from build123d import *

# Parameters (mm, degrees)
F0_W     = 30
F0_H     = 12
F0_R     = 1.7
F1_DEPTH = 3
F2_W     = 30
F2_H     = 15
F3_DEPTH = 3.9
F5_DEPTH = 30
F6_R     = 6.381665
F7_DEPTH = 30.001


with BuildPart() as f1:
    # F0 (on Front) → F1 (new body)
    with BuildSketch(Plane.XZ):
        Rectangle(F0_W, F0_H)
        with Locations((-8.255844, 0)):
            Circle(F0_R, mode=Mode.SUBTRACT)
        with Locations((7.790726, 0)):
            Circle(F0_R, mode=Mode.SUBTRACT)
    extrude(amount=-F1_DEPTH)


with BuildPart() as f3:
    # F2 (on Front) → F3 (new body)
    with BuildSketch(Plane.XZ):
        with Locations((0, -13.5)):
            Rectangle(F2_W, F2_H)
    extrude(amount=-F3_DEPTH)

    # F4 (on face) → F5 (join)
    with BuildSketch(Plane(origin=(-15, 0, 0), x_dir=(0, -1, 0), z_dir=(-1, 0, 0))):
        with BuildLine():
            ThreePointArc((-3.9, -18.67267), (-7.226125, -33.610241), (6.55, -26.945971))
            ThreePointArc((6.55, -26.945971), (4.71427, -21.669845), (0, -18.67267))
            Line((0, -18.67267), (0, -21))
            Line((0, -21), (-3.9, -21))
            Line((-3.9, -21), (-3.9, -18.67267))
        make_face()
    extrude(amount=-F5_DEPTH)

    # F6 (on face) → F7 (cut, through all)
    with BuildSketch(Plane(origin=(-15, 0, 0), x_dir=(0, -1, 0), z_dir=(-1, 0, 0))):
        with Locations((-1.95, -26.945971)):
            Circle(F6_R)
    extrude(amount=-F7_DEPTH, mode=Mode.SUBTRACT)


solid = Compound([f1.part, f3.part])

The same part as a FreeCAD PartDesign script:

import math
import FreeCAD as App
import Part
import Sketcher

V = App.Vector

doc = App.newDocument("Part")
body = doc.addObject("PartDesign::Body", "Body")

sketch1 = body.newObject("Sketcher::SketchObject", "Sketch")
sketch1.AttachmentSupport = (doc.getObject("XZ_Plane"), [""])
sketch1.MapMode = "FlatFace"
sketch1.addGeometry([
    Part.LineSegment(V(-15, 6, 0), V(-15, -6, 0)),
    Part.LineSegment(V(-15, -6, 0), V(15, -6, 0)),
    Part.LineSegment(V(15, -6, 0), V(15, 6, 0)),
    Part.LineSegment(V(15, 6, 0), V(-15, 6, 0)),
    Part.Circle(V(-8.3, 0, 0), V(0, 0, 1), 1.7),
    Part.Circle(V(7.8, 0, 0), V(0, 0, 1), 1.7),
], False)
sketch1.addConstraint([
    Sketcher.Constraint("Coincident", 0, 2, 1, 1),
    Sketcher.Constraint("Coincident", 1, 2, 2, 1),
    Sketcher.Constraint("Coincident", 2, 2, 3, 1),
    Sketcher.Constraint("Coincident", 3, 2, 0, 1),
    Sketcher.Constraint("Vertical", 0),
    Sketcher.Constraint("Horizontal", 1),
    Sketcher.Constraint("Vertical", 2),
    Sketcher.Constraint("Horizontal", 3),
    Sketcher.Constraint("Equal", 4, 5),
    Sketcher.Constraint("Symmetric", 0, 2, 2, 2, -1, 1),
    Sketcher.Constraint("PointOnObject", 4, 3, -1),
    Sketcher.Constraint("PointOnObject", 5, 3, -1),
    Sketcher.Constraint("Diameter", 4, 3.4),
    Sketcher.Constraint("DistanceX", 1, 1, 1, 2, 30.0),
    Sketcher.Constraint("DistanceY", 0, 2, 0, 1, 12.0),
    Sketcher.Constraint("DistanceX", 4, 3, 5, 3, 16.04657),
    Sketcher.Constraint("DistanceX", 4, 3, -1, 1, 8.255844),
])
pad1 = body.newObject("PartDesign::Pad", "Pad")
pad1.Profile = sketch1
pad1.Length = 3
pad1.Reversed = True
body2 = doc.addObject("PartDesign::Body", "Body001")

sketch2 = body2.newObject("Sketcher::SketchObject", "Sketch001")
sketch2.AttachmentSupport = (doc.getObject("XZ_Plane001"), [""])
sketch2.MapMode = "FlatFace"
sketch2.addGeometry([
    Part.LineSegment(V(-15, -6, 0), V(-15, -21, 0)),
    Part.LineSegment(V(-15, -21, 0), V(15, -21, 0)),
    Part.LineSegment(V(15, -21, 0), V(15, -6, 0)),
    Part.LineSegment(V(15, -6, 0), V(-15, -6, 0)),
], False)
sketch2.addConstraint([
    Sketcher.Constraint("Coincident", 0, 2, 1, 1),
    Sketcher.Constraint("Coincident", 1, 2, 2, 1),
    Sketcher.Constraint("Coincident", 2, 2, 3, 1),
    Sketcher.Constraint("Coincident", 3, 2, 0, 1),
    Sketcher.Constraint("Vertical", 0),
    Sketcher.Constraint("Horizontal", 1),
    Sketcher.Constraint("Vertical", 2),
    Sketcher.Constraint("Horizontal", 3),
    Sketcher.Constraint("DistanceX", 1, 1, 1, 2, 30.0),
    Sketcher.Constraint("DistanceY", 0, 2, 0, 1, 15.0),
    Sketcher.Constraint("DistanceX", 0, 2, -1, 1, 15.0),
    Sketcher.Constraint("DistanceY", 0, 2, -1, 1, 21.0),
])
pad2 = body2.newObject("PartDesign::Pad", "Pad001")
pad2.Profile = sketch2
pad2.Length = 3.9
pad2.Reversed = True

sketch3 = body2.newObject("Sketcher::SketchObject", "Sketch002")
sketch3.AttachmentSupport = (doc.getObject("YZ_Plane001"), [""])
sketch3.MapMode = "FlatFace"
sketch3.AttachmentOffset = App.Placement(V(0, 0, -15), App.Rotation())
sketch3.addGeometry([
    Part.ArcOfCircle(Part.Circle(V(1.9, -26.9, 0), V(0, 0, 1), 8.5), math.radians(-180), math.radians(77)),
    Part.ArcOfCircle(Part.Circle(V(2, -26.9, 0), V(0, 0, 1), 8.5), math.radians(103), math.radians(180)),
    Part.LineSegment(V(0, -18.7, 0), V(0, -21, 0)),
    Part.LineSegment(V(0, -21, 0), V(3.9, -21, 0)),
    Part.LineSegment(V(3.9, -21, 0), V(3.9, -18.7, 0)),
], False)
sketch3.addConstraint([
    Sketcher.Constraint("Tangent", 0, 1, 1, 2),
    Sketcher.Constraint("Coincident", 1, 1, 2, 1),
    Sketcher.Constraint("Coincident", 2, 2, 3, 1),
    Sketcher.Constraint("Coincident", 3, 2, 4, 1),
    Sketcher.Constraint("Coincident", 4, 2, 0, 2),
    Sketcher.Constraint("Vertical", 2),
    Sketcher.Constraint("Horizontal", 3),
    Sketcher.Constraint("Vertical", 4),
    Sketcher.Constraint("Equal", 0, 1),
    Sketcher.Constraint("PointOnObject", 1, 1, -2),
    Sketcher.Constraint("Horizontal", 1, 3, 0, 1),
    Sketcher.Constraint("Horizontal", 1, 1, 4, 2),
    Sketcher.Constraint("Radius", 0, 8.5),
    Sketcher.Constraint("DistanceX", 3, 1, 3, 2, 3.9),
    Sketcher.Constraint("DistanceY", 2, 2, -1, 1, 21.0),
    Sketcher.Constraint("DistanceY", 2, 2, 2, 1, 2.32733),
])
pad3 = body2.newObject("PartDesign::Pad", "Pad002")
pad3.Profile = sketch3
pad3.Length = 30

sketch4 = body2.newObject("Sketcher::SketchObject", "Sketch003")
sketch4.AttachmentSupport = (doc.getObject("YZ_Plane001"), [""])
sketch4.MapMode = "FlatFace"
sketch4.AttachmentOffset = App.Placement(V(0, 0, -15), App.Rotation())
sketch4.addGeometry(Part.Circle(V(2, -27, 0), V(0, 0, 1), 6), False)
sketch4.addConstraint([
    Sketcher.Constraint("Diameter", 0, 12.76333),
    Sketcher.Constraint("DistanceX", -1, 1, 0, 3, 1.95),
    Sketcher.Constraint("DistanceY", 0, 3, -1, 1, 26.945971),
])
pocket1 = body2.newObject("PartDesign::Pocket", "Pocket")
pocket1.Profile = sketch4
pocket1.Type = "ThroughAll"
pocket1.Reversed = True

doc.recompute()
